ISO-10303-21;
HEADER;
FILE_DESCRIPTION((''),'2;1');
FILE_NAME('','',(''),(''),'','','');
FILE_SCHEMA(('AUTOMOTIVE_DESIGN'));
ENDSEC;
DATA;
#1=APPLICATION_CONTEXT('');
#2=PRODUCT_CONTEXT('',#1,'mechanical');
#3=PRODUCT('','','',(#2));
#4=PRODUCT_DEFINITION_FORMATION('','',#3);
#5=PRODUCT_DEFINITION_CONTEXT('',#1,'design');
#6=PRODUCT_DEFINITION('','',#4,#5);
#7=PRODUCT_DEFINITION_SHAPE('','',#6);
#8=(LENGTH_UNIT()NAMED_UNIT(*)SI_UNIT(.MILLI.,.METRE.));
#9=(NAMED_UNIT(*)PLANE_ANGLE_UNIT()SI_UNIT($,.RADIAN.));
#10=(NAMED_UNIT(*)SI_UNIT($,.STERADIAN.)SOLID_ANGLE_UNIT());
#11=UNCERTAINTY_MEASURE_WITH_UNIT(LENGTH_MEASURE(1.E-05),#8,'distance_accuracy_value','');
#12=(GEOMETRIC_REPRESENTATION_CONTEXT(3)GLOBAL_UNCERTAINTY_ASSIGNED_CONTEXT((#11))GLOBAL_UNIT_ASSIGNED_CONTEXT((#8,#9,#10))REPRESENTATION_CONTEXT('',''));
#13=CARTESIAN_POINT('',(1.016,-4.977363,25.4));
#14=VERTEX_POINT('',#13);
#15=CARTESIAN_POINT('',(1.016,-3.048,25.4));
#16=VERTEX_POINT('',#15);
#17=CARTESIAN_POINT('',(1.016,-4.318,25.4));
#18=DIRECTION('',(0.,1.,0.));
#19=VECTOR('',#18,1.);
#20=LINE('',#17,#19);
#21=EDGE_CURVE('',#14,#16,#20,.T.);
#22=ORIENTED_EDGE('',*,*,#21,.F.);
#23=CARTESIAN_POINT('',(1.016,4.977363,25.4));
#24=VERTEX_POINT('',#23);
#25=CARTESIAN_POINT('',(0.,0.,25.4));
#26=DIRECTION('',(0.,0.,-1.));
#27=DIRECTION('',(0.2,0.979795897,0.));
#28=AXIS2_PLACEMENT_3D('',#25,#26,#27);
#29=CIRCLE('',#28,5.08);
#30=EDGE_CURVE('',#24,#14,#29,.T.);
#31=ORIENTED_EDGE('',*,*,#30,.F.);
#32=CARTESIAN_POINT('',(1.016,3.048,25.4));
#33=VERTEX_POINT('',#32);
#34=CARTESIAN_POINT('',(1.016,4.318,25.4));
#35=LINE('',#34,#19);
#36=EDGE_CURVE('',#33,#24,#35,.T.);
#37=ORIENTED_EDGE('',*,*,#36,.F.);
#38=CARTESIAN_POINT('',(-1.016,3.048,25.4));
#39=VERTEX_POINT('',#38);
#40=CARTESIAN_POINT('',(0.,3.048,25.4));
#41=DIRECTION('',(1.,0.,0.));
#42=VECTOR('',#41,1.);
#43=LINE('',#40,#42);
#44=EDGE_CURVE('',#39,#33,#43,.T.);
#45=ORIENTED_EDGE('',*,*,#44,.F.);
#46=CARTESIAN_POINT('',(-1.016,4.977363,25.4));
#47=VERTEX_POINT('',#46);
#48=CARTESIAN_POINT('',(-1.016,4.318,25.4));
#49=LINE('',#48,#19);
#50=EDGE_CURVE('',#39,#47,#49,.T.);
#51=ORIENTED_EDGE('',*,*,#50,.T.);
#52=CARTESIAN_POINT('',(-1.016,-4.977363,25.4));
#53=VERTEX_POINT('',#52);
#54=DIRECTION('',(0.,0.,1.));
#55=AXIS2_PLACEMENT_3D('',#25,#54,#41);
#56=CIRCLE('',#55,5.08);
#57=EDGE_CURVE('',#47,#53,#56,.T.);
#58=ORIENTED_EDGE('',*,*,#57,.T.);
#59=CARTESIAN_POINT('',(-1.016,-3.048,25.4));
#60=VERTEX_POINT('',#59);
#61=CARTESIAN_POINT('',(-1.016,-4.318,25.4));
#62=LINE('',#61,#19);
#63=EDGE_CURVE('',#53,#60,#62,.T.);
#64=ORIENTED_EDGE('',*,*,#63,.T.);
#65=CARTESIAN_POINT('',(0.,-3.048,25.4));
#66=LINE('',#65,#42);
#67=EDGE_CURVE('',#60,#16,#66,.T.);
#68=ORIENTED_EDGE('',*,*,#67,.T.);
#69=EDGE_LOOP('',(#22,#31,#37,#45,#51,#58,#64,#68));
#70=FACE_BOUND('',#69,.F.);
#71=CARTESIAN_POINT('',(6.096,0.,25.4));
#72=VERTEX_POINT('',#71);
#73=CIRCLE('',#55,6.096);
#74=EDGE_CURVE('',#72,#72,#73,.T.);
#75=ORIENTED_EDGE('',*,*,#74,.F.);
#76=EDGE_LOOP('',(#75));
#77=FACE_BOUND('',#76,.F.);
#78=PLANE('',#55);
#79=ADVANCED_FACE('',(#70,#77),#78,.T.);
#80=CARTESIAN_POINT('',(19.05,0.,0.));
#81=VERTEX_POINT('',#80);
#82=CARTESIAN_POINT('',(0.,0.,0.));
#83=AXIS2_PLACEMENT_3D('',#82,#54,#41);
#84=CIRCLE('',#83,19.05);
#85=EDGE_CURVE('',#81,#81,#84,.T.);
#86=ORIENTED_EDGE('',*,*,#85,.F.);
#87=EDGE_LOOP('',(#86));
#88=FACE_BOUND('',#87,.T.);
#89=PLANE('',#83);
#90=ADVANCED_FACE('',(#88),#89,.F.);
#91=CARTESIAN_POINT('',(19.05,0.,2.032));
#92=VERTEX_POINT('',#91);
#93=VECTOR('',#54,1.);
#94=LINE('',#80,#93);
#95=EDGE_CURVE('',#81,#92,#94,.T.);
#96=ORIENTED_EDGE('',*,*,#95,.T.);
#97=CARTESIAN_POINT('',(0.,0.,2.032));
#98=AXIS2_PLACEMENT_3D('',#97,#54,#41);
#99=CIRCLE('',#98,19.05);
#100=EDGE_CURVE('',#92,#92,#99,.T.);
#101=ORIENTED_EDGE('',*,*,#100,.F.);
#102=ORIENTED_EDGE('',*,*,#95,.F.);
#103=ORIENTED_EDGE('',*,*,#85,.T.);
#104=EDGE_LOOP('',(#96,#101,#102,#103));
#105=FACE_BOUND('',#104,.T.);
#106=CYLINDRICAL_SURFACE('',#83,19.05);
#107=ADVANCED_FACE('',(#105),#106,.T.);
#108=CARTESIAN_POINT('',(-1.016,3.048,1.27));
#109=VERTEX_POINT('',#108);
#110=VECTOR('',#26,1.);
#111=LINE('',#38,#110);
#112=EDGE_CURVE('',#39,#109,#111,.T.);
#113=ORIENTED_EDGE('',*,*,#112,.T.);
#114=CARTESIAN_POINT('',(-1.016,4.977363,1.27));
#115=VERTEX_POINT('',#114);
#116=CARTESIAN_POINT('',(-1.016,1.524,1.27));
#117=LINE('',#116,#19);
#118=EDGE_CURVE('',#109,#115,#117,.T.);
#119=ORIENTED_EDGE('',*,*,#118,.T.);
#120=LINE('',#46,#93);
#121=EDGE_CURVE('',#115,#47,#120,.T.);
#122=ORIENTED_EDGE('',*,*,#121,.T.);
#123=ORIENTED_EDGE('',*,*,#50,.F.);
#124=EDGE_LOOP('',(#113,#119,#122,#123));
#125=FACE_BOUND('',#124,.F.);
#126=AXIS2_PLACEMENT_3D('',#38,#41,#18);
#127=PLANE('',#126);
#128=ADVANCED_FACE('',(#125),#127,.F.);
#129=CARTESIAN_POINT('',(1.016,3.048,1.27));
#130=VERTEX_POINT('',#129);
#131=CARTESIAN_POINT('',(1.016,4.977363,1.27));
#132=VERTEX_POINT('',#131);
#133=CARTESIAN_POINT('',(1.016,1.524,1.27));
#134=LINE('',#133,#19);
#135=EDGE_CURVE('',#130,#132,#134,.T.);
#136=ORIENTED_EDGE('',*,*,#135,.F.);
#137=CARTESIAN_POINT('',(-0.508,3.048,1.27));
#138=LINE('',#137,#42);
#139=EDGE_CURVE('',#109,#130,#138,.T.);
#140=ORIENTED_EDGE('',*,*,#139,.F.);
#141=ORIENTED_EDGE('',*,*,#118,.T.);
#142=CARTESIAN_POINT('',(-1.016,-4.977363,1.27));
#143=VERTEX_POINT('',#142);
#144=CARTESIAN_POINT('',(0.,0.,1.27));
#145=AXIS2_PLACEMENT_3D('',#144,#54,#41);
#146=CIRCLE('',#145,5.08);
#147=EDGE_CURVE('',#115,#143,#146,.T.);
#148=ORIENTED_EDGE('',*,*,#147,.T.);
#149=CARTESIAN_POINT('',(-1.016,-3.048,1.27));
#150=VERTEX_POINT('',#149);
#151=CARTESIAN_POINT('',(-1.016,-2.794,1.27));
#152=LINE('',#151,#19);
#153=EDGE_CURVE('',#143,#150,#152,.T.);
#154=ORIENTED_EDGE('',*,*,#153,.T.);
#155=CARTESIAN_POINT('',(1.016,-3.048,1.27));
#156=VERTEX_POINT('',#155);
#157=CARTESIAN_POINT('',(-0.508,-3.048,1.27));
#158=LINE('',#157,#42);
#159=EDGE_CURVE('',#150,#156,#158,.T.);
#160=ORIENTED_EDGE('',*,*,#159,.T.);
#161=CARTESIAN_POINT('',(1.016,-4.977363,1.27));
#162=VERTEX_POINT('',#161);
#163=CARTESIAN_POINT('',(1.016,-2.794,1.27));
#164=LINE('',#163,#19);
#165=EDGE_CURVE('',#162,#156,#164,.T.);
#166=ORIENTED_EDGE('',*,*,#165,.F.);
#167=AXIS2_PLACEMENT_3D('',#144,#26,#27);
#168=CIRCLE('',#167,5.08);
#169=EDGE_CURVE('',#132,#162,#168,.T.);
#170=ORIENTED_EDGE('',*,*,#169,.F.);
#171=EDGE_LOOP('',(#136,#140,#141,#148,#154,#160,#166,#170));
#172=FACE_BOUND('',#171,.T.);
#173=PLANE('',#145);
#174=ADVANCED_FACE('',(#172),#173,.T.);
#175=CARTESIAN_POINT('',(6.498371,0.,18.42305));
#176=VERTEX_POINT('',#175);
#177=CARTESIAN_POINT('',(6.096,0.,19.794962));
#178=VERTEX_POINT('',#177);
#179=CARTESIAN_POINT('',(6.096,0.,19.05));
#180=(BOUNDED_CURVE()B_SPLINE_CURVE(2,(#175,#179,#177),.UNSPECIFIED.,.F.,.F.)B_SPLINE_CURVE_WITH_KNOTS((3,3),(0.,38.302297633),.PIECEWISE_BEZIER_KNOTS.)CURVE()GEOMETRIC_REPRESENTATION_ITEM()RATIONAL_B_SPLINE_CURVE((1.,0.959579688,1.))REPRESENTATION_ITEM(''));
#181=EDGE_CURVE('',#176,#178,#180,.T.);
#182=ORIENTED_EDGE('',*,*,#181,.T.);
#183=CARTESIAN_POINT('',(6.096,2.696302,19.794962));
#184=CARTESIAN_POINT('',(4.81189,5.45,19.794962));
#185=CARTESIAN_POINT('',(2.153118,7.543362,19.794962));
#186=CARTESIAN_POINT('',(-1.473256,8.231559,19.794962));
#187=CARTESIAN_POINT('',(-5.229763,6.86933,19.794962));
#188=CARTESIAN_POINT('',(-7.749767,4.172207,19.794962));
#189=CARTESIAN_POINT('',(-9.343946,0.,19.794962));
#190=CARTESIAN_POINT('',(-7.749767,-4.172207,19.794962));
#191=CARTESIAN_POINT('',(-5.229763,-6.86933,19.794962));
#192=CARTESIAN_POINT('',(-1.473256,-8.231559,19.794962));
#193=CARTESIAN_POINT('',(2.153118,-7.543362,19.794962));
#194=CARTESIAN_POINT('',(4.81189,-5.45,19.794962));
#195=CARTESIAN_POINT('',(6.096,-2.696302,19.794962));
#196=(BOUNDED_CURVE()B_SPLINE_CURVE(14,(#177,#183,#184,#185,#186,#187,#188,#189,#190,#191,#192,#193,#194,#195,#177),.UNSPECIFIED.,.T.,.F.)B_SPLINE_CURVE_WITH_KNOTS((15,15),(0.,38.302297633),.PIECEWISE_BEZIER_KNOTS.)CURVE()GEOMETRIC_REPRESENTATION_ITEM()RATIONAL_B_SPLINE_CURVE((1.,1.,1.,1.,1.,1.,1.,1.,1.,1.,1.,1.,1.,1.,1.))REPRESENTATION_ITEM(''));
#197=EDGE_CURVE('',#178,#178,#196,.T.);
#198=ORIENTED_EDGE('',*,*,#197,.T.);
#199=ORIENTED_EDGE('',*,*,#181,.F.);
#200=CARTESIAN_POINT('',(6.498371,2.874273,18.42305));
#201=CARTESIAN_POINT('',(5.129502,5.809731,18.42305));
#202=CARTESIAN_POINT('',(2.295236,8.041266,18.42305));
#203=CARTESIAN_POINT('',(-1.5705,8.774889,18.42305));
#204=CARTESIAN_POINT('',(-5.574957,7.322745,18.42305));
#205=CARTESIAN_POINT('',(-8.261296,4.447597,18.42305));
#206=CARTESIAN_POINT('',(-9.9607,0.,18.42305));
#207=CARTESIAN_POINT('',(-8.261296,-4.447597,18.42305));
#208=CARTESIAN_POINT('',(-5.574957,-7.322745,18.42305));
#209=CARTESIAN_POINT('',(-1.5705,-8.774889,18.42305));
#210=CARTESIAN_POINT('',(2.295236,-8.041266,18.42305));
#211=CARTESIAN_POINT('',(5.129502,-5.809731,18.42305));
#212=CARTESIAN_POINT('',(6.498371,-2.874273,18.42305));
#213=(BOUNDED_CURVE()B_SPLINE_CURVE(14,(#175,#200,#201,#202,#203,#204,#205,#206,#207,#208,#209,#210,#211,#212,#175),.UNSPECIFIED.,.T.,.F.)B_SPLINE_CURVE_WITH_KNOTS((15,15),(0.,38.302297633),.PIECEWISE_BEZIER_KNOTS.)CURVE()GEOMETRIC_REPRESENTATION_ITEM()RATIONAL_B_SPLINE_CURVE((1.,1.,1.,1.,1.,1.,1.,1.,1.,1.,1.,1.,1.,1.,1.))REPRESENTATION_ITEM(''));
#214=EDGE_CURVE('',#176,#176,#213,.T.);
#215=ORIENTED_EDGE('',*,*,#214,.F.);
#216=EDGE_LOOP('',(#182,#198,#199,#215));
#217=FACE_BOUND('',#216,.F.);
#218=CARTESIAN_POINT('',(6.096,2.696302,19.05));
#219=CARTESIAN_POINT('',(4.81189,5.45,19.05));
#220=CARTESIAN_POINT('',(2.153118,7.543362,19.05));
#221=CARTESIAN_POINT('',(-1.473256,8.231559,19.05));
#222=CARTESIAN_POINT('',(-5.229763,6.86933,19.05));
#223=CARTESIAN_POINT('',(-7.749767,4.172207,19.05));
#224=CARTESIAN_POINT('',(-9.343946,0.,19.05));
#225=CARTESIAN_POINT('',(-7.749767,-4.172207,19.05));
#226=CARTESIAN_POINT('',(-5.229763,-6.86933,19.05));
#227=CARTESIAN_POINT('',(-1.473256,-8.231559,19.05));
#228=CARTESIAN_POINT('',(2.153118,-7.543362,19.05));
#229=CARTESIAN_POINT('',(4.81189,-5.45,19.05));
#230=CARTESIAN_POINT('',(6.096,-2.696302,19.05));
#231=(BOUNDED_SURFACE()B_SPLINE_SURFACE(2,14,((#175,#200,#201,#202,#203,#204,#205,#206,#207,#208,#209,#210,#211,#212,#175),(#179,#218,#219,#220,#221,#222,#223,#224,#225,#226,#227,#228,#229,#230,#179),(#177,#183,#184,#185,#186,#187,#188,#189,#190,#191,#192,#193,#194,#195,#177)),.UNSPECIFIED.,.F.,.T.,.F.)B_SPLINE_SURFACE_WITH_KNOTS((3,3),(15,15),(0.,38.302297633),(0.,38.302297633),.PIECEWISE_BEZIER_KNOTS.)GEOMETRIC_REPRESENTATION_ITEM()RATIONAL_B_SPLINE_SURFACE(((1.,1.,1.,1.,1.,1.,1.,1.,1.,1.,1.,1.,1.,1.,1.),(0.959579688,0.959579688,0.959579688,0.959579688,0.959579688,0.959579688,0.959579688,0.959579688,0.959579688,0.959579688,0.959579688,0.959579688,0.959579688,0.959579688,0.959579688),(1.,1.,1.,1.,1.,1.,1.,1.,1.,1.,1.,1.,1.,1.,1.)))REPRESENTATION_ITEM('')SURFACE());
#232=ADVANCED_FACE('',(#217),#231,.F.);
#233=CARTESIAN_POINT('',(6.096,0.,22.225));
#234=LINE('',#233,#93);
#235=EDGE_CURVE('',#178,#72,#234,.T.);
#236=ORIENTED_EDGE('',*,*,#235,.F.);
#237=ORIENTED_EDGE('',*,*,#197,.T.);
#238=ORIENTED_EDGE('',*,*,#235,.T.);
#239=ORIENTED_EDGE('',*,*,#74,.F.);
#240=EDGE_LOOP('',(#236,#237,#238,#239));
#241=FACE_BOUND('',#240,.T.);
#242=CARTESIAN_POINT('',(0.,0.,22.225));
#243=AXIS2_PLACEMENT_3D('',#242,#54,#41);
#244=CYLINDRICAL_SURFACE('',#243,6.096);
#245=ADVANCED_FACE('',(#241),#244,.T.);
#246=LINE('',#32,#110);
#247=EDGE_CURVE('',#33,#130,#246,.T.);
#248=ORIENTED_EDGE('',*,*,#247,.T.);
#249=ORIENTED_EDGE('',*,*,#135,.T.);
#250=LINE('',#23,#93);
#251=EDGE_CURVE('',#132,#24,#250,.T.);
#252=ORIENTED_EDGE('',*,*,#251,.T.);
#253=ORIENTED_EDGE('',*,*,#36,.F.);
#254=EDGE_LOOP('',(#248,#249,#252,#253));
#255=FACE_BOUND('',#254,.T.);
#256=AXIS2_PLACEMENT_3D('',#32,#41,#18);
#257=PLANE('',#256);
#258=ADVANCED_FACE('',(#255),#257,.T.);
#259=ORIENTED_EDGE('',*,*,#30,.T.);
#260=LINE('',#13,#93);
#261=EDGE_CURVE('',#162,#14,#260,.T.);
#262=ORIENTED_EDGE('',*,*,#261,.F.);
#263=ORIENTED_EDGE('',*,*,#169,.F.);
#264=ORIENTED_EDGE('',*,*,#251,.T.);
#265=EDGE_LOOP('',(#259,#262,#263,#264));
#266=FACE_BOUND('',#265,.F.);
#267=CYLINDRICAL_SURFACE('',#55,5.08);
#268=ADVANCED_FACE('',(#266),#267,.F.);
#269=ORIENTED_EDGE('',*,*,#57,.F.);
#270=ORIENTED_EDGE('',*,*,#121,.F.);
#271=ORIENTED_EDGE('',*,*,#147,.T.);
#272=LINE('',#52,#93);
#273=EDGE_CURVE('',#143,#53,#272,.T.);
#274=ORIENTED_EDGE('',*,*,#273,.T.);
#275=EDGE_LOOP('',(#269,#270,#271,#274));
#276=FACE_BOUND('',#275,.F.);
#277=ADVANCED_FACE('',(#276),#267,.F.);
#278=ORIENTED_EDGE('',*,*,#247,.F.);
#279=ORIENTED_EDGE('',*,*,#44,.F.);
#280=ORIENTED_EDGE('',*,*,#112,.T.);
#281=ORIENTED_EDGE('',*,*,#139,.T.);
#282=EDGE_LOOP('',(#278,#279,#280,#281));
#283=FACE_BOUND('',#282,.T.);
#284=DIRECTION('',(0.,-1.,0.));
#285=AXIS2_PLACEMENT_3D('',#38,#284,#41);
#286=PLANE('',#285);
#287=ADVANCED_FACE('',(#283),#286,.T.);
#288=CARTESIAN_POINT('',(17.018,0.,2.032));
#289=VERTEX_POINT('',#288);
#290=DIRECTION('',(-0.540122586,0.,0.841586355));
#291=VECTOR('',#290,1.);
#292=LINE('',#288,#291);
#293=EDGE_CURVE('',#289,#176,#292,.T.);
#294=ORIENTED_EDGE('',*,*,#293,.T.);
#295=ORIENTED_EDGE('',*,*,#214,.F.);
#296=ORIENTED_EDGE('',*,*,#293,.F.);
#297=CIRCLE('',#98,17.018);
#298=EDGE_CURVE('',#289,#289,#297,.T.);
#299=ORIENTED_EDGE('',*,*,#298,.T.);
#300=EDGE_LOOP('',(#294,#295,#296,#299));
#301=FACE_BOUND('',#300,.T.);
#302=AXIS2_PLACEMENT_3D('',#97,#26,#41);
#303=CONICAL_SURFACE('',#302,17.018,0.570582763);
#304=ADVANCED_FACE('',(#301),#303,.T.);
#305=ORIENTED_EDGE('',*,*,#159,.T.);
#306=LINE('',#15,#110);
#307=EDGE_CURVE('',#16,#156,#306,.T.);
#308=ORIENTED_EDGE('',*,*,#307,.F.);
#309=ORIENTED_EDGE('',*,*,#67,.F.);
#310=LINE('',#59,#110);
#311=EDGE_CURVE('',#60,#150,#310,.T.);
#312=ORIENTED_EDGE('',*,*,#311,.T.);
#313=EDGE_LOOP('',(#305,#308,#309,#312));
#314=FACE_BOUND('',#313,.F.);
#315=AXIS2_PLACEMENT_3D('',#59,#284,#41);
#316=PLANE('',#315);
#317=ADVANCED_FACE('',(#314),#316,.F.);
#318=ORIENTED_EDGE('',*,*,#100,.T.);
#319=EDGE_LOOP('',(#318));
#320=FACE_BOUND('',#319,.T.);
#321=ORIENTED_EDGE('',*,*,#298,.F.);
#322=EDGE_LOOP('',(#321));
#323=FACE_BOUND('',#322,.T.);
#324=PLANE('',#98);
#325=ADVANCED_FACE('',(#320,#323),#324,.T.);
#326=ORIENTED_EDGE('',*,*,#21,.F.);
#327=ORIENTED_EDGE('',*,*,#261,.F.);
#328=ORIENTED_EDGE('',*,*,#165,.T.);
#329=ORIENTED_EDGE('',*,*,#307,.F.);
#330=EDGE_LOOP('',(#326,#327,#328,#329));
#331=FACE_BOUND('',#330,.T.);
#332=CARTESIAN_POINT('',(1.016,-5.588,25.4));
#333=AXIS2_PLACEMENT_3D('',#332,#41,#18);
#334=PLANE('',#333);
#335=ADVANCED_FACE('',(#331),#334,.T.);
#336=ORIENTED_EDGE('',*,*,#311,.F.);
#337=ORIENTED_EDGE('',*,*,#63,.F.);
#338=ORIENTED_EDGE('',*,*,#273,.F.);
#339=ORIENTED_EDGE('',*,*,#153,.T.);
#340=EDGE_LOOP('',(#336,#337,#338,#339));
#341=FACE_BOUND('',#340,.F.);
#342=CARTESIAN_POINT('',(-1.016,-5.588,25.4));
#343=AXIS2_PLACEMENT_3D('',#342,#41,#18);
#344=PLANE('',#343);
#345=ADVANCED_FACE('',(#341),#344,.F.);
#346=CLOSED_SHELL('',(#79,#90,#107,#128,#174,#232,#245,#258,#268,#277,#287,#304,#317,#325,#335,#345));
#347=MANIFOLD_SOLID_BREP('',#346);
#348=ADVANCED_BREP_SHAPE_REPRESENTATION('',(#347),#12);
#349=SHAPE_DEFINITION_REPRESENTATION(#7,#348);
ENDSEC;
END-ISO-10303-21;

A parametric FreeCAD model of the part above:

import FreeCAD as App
import Part
import Sketcher
from FreeCAD import Vector
Q = App.Units.Quantity


def edges_at(feature, points):
    """Names of the edges that pass closest to the given points."""
    edges = feature.Shape.Edges
    near = lambda p: min(range(len(edges)), key=lambda i: edges[i].distToShape(Part.Vertex(*p))[0])
    return sorted({f"Edge{near(p) + 1}" for p in points})


def add_polygon(sketch, points):
    """Adds a closed chain of lines whose ends are joined by coincident constraints."""
    first, n = sketch.GeometryCount, len(points)
    for a, b in zip(points, points[1:] + points[:1]):
        sketch.addGeometry(Part.LineSegment(App.Vector(*a, 0), App.Vector(*b, 0)), False)
    for i in range(n):
        sketch.addConstraint(Sketcher.Constraint("Coincident", first + i, 2, first + (i + 1) % n, 1))

doc = App.newDocument("Part")
body = doc.addObject("PartDesign::Body", "Body")

# Sketch on XZ plane
sketch1 = doc.addObject("Sketcher::SketchObject", "Sketch")
body.addObject(sketch1)
sketch1.AttachmentSupport = (doc.XZ_Plane, [""])
sketch1.MapMode = "FlatFace"
add_polygon(sketch1, [(0, 0), (19.1, 0), (19.1, 2), (17, 2), (6.1, 19.1), (6.1, 25.4), (0, 25.4)])  # lines 0-6
sketch1.addConstraint([
    Sketcher.Constraint("Horizontal", 0),
    Sketcher.Constraint("Vertical", 1),
    Sketcher.Constraint("Horizontal", 2),
    Sketcher.Constraint("Vertical", 4),
    Sketcher.Constraint("Horizontal", 5),
    Sketcher.Constraint("Vertical", 6),
    Sketcher.Constraint("Coincident", 6, 2, -1, 1),
    Sketcher.Constraint("Equal", 2, 1),
    Sketcher.Constraint("DistanceY", 6, 2, 6, 1, Q("1 in")),
    Sketcher.Constraint("DistanceX", 0, 1, 0, 2, Q("0.75 in")),
    Sketcher.Constraint("DistanceX", 2, 2, 2, 1, Q("0.08 in")),
    Sketcher.Constraint("DistanceX", 5, 2, 5, 1, Q("0.24 in")),
    Sketcher.Constraint("DistanceY", 4, 1, 4, 2, Q("0.25 in")),
])
revolution = doc.addObject("PartDesign::Revolution", "Revolution")
body.addObject(revolution)
revolution.Profile = sketch1
revolution.ReferenceAxis = (sketch1, ["V_Axis"])
revolution.Angle = 360

# Sketch on XY plane
sketch2 = doc.addObject("Sketcher::SketchObject", "Sketch001")
body.addObject(sketch2)
sketch2.AttachmentSupport = (doc.XY_Plane, [""])
sketch2.MapMode = "FlatFace"
sketch2.AttachmentOffset = App.Placement(Vector(0, 0, 1 * 25.4), App.Rotation())
sketch2.addGeometry(Part.Circle(Vector(0, 0, 0), Vector(0, 0, 1), 5), False)
sketch2.addConstraint([
    Sketcher.Constraint("Coincident", 0, 3, -1, 1),
    Sketcher.Constraint("Diameter", 0, Q("0.4 in")),
])
pocket1 = doc.addObject("PartDesign::Pocket", "Pocket")
body.addObject(pocket1)
pocket1.Profile = sketch2
pocket1.Length = Q("0.95 in")
doc.recompute()

fillet = doc.addObject("PartDesign::Fillet", "Fillet")
body.addObject(fillet)
fillet.Base = (pocket1, edges_at(pocket1, [(-6.096, 0, 19.05)]))
fillet.Radius = Q("0.1 in")

# Sketch on XY plane
sketch3 = doc.addObject("Sketcher::SketchObject", "Sketch002")
body.addObject(sketch3)
sketch3.AttachmentSupport = (doc.XY_Plane, [""])
sketch3.MapMode = "FlatFace"
sketch3.AttachmentOffset = App.Placement(Vector(0, 0, 1 * 25.4), App.Rotation())
add_polygon(sketch3, [(-1, -3), (-1, -5.6), (1, -5.6), (1, -3)])  # lines 0-3
add_polygon(sketch3, [(-1, 5.6), (-1, 3), (1, 3), (1, 5.6)])  # lines 4-7
sketch3.addConstraint([
    Sketcher.Constraint("Vertical", 0),
    Sketcher.Constraint("Horizontal", 1),
    Sketcher.Constraint("Vertical", 2),
    Sketcher.Constraint("Horizontal", 3),
    Sketcher.Constraint("Vertical", 4),
    Sketcher.Constraint("Horizontal", 5),
    Sketcher.Constraint("Vertical", 6),
    Sketcher.Constraint("Horizontal", 7),
    Sketcher.Constraint("Symmetric", 2, 2, 4, 2, -1, 1),
    Sketcher.Constraint("Symmetric", 0, 2, 6, 2, -1, 1),
    Sketcher.Constraint("Vertical", 3, 2, 4, 2),
    Sketcher.Constraint("DistanceY", 0, 2, 0, 1, Q("0.1 in")),
    Sketcher.Constraint("DistanceX", 1, 1, 1, 2, Q("0.08 in")),
    Sketcher.Constraint("DistanceY", 0, 2, -1, 1, Q("0.22 in")),
])
pad1 = doc.addObject("PartDesign::Pad", "Pad")
body.addObject(pad1)
pad1.Profile = sketch3
pad1.Length = Q("1 in")
pad1.Reversed = True

doc.recompute()
